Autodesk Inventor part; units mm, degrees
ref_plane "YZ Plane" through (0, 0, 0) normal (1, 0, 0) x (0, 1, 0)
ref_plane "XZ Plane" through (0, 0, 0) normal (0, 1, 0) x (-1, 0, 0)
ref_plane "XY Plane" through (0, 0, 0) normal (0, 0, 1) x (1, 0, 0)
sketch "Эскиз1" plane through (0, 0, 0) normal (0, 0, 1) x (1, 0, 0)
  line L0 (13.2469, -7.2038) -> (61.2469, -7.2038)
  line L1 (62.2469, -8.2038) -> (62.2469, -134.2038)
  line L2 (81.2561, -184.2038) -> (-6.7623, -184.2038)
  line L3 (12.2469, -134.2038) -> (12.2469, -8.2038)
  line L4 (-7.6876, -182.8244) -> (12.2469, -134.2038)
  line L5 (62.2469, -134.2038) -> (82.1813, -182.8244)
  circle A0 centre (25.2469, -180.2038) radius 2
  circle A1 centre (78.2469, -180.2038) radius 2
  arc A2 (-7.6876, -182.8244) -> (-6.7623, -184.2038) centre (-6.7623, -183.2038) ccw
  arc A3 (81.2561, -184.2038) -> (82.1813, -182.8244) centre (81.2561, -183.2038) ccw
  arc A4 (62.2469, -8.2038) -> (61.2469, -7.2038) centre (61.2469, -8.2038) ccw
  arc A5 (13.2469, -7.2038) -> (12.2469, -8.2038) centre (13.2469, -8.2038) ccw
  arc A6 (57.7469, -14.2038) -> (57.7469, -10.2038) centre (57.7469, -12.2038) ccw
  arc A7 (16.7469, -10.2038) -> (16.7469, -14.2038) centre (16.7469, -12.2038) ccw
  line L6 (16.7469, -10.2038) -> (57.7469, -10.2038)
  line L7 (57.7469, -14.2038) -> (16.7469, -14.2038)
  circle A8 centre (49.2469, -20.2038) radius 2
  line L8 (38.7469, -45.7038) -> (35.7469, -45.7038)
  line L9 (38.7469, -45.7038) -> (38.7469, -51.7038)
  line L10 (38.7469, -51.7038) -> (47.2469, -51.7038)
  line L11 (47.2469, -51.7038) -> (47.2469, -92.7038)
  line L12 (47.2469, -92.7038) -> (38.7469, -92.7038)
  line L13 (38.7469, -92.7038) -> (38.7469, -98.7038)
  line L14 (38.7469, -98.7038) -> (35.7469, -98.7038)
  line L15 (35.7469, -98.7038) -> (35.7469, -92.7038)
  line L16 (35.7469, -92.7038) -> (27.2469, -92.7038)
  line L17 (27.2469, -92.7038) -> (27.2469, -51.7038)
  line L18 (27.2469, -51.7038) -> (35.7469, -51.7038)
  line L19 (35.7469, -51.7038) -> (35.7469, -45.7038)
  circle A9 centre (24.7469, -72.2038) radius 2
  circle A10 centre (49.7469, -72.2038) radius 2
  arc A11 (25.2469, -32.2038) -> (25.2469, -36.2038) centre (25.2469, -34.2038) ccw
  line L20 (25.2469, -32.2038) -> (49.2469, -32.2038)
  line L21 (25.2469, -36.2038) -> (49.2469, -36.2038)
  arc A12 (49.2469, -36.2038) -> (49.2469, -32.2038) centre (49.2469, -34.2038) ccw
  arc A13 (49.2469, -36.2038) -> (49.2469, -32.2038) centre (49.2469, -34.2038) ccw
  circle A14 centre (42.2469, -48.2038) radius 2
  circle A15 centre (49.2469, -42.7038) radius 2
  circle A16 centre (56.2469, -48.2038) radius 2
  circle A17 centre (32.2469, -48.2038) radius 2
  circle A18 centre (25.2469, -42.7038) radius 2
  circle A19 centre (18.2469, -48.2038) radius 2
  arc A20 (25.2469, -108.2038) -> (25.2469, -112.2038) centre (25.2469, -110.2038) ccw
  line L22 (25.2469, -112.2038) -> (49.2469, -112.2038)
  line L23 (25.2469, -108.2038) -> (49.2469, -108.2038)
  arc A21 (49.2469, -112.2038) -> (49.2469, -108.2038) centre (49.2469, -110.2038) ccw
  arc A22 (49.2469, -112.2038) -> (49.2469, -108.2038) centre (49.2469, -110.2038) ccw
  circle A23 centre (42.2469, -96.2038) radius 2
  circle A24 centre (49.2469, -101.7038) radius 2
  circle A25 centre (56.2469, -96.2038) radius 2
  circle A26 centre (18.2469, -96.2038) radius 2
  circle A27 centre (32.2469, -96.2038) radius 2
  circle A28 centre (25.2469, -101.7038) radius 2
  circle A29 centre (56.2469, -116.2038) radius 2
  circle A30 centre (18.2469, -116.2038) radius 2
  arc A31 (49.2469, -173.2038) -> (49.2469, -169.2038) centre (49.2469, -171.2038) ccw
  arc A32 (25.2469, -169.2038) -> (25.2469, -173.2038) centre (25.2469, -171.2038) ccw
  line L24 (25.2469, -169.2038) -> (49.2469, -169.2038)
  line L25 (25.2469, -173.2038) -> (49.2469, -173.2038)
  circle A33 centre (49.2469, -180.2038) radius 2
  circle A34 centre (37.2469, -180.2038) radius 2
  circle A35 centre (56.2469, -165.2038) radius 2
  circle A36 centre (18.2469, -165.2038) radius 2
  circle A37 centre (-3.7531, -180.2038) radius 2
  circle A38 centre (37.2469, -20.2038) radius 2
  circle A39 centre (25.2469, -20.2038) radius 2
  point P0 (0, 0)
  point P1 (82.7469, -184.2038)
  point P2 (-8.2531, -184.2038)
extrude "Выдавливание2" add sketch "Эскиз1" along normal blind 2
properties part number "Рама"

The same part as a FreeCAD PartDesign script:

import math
import FreeCAD as App
import Part
import Sketcher
Q = App.Units.Quantity


def add_polygon(sketch, points):
    """Adds a closed chain of lines whose ends are joined by coincident constraints."""
    first, n = sketch.GeometryCount, len(points)
    for a, b in zip(points, points[1:] + points[:1]):
        sketch.addGeometry(Part.LineSegment(App.Vector(*a, 0), App.Vector(*b, 0)), False)
    for i in range(n):
        sketch.addConstraint(Sketcher.Constraint("Coincident", first + i, 2, first + (i + 1) % n, 1))

doc = App.newDocument("Part")
body = doc.addObject("PartDesign::Body", "Body")

# Sketch on XY plane
sketch1 = body.newObject("Sketcher::SketchObject", "Sketch")
sketch1.AttachmentSupport = (doc.getObject("XY_Plane"), [""])
sketch1.MapMode = "FlatFace"
sketch1.addGeometry(Part.LineSegment(App.Vector(61.2469, -7.2038, 0), App.Vector(13.2469, -7.2038, 0)), False)  # 0
sketch1.addGeometry(Part.ArcOfCircle(Part.Circle(App.Vector(13.2469, -8.2038, 0), App.Vector(0, 0, 1), 1), math.radians(90), math.radians(180)), False)  # 1
sketch1.addGeometry(Part.LineSegment(App.Vector(12.2469, -8.2038, 0), App.Vector(12.2469, -134.2038, 0)), False)  # 2
sketch1.addGeometry(Part.LineSegment(App.Vector(12.2469, -134.2038, 0), App.Vector(-7.6876, -182.8244, 0)), False)  # 3
sketch1.addGeometry(Part.ArcOfCircle(Part.Circle(App.Vector(-6.7623, -183.2038, 0), App.Vector(0, 0, 1), 1.000062), math.radians(157.70494), math.radians(270)), False)  # 4
sketch1.addGeometry(Part.LineSegment(App.Vector(-6.7623, -184.2038, 0), App.Vector(81.2561, -184.2038, 0)), False)  # 5
sketch1.addGeometry(Part.ArcOfCircle(Part.Circle(App.Vector(81.2561, -183.2038, 0), App.Vector(0, 0, 1), 1), math.radians(-90), math.radians(22.297234)), False)  # 6
sketch1.addGeometry(Part.LineSegment(App.Vector(82.1813, -182.8244, 0), App.Vector(62.2469, -134.2038, 0)), False)  # 7
sketch1.addGeometry(Part.LineSegment(App.Vector(62.2469, -134.2038, 0), App.Vector(62.2469, -8.2038, 0)), False)  # 8
sketch1.addGeometry(Part.ArcOfCircle(Part.Circle(App.Vector(61.2469, -8.2038, 0), App.Vector(0, 0, 1), 1), math.radians(0), math.radians(90)), False)  # 9
sketch1.addGeometry(Part.Circle(App.Vector(-3.7531, -180.2038, 0), App.Vector(0, 0, 1), 2), False)  # 10
sketch1.addGeometry(Part.Circle(App.Vector(25.2469, -180.2038, 0), App.Vector(0, 0, 1), 2), False)  # 11
sketch1.addGeometry(Part.Circle(App.Vector(18.2469, -165.2038, 0), App.Vector(0, 0, 1), 2), False)  # 12
sketch1.addGeometry(Part.Circle(App.Vector(18.2469, -116.2038, 0), App.Vector(0, 0, 1), 2), False)  # 13
sketch1.addGeometry(Part.Circle(App.Vector(18.2469, -96.2038, 0), App.Vector(0, 0, 1), 2), False)  # 14
sketch1.addGeometry(Part.Circle(App.Vector(25.2469, -101.7038, 0), App.Vector(0, 0, 1), 2), False)  # 15
sketch1.addGeometry(Part.Circle(App.Vector(32.2469, -96.2038, 0), App.Vector(0, 0, 1), 2), False)  # 16
sketch1.addGeometry(Part.Circle(App.Vector(37.2469, -180.2038, 0), App.Vector(0, 0, 1), 2), False)  # 17
sketch1.addGeometry(Part.ArcOfCircle(Part.Circle(App.Vector(49.2469, -171.2038, 0), App.Vector(0, 0, 1), 2), math.radians(-90), math.radians(90)), False)  # 18
sketch1.addGeometry(Part.LineSegment(App.Vector(49.2469, -173.2038, 0), App.Vector(25.2469, -173.2038, 0)), False)  # 19
sketch1.addGeometry(Part.ArcOfCircle(Part.Circle(App.Vector(25.2469, -171.2038, 0), App.Vector(0, 0, 1), 2), math.radians(90), math.radians(270)), False)  # 20
sketch1.addGeometry(Part.LineSegment(App.Vector(25.2469, -169.2038, 0), App.Vector(49.2469, -169.2038, 0)), False)  # 21
sketch1.addGeometry(Part.Circle(App.Vector(49.2469, -180.2038, 0), App.Vector(0, 0, 1), 2), False)  # 22
sketch1.addGeometry(Part.Circle(App.Vector(56.2469, -165.2038, 0), App.Vector(0, 0, 1), 2), False)  # 23
sketch1.addGeometry(Part.Circle(App.Vector(78.2469, -180.2038, 0), App.Vector(0, 0, 1), 2), False)  # 24
sketch1.addGeometry(Part.ArcOfCircle(Part.Circle(App.Vector(25.2469, -110.2038, 0), App.Vector(0, 0, 1), 2), math.radians(90), math.radians(270)), False)  # 25
sketch1.addGeometry(Part.LineSegment(App.Vector(25.2469, -108.2038, 0), App.Vector(49.2469, -108.2038, 0)), False)  # 26
sketch1.addGeometry(Part.ArcOfCircle(Part.Circle(App.Vector(49.2469, -110.2038, 0), App.Vector(0, 0, 1), 2), math.radians(-90), math.radians(90)), False)  # 27
sketch1.addGeometry(Part.LineSegment(App.Vector(49.2469, -112.2038, 0), App.Vector(25.2469, -112.2038, 0)), False)  # 28
sketch1.addGeometry(Part.Circle(App.Vector(42.2469, -96.2038, 0), App.Vector(0, 0, 1), 2), False)  # 29
sketch1.addGeometry(Part.Circle(App.Vector(56.2469, -116.2038, 0), App.Vector(0, 0, 1), 2), False)  # 30
sketch1.addGeometry(Part.Circle(App.Vector(49.2469, -101.7038, 0), App.Vector(0, 0, 1), 2), False)  # 31
sketch1.addGeometry(Part.Circle(App.Vector(56.2469, -96.2038, 0), App.Vector(0, 0, 1), 2), False)  # 32
sketch1.addGeometry(Part.Circle(App.Vector(24.7469, -72.2038, 0), App.Vector(0, 0, 1), 2), False)  # 33
sketch1.addGeometry(Part.Circle(App.Vector(18.2469, -48.2038, 0), App.Vector(0, 0, 1), 2), False)  # 34
sketch1.addGeometry(Part.Circle(App.Vector(25.2469, -42.7038, 0), App.Vector(0, 0, 1), 2), False)  # 35
sketch1.addGeometry(Part.Circle(App.Vector(32.2469, -48.2038, 0), App.Vector(0, 0, 1), 2), False)  # 36
sketch1.addGeometry(Part.Circle(App.Vector(25.2469, -20.2038, 0), App.Vector(0, 0, 1), 2), False)  # 37
add_polygon(sketch1, [(35.7469, -45.7038), (38.7469, -45.7038), (38.7469, -51.7038), (47.2469, -51.7038), (47.2469, -92.7038), (38.7469, -92.7038), (38.7469, -98.7038), (35.7469, -98.7038), (35.7469, -92.7038), (27.2469, -92.7038), (27.2469, -51.7038), (35.7469, -51.7038)])  # lines 38-49
sketch1.addGeometry(Part.Circle(App.Vector(49.7469, -72.2038, 0), App.Vector(0, 0, 1), 2), False)  # 50
sketch1.addGeometry(Part.Circle(App.Vector(42.2469, -48.2038, 0), App.Vector(0, 0, 1), 2), False)  # 51
sketch1.addGeometry(Part.ArcOfCircle(Part.Circle(App.Vector(25.2469, -34.2038, 0), App.Vector(0, 0, 1), 2), math.radians(90), math.radians(270)), False)  # 52
sketch1.addGeometry(Part.LineSegment(App.Vector(25.2469, -32.2038, 0), App.Vector(49.2469, -32.2038, 0)), False)  # 53
sketch1.addGeometry(Part.ArcOfCircle(Part.Circle(App.Vector(49.2469, -34.2038, 0), App.Vector(0, 0, 1), 2), math.radians(-90), math.radians(90)), False)  # 54
sketch1.addGeometry(Part.LineSegment(App.Vector(49.2469, -36.2038, 0), App.Vector(25.2469, -36.2038, 0)), False)  # 55
sketch1.addGeometry(Part.Circle(App.Vector(49.2469, -42.7038, 0), App.Vector(0, 0, 1), 2), False)  # 56
sketch1.addGeometry(Part.Circle(App.Vector(56.2469, -48.2038, 0), App.Vector(0, 0, 1), 2), False)  # 57
sketch1.addGeometry(Part.Circle(App.Vector(37.2469, -20.2038, 0), App.Vector(0, 0, 1), 2), False)  # 58
sketch1.addGeometry(Part.ArcOfCircle(Part.Circle(App.Vector(57.7469, -12.2038, 0), App.Vector(0, 0, 1), 2), math.radians(-90), math.radians(90)), False)  # 59
sketch1.addGeometry(Part.LineSegment(App.Vector(57.7469, -14.2038, 0), App.Vector(16.7469, -14.2038, 0)), False)  # 60
sketch1.addGeometry(Part.ArcOfCircle(Part.Circle(App.Vector(16.7469, -12.2038, 0), App.Vector(0, 0, 1), 2), math.radians(90), math.radians(270)), False)  # 61
sketch1.addGeometry(Part.LineSegment(App.Vector(16.7469, -10.2038, 0), App.Vector(57.7469, -10.2038, 0)), False)  # 62
sketch1.addGeometry(Part.Circle(App.Vector(49.2469, -20.2038, 0), App.Vector(0, 0, 1), 2), False)  # 63
sketch1.addConstraint([
    Sketcher.Constraint("Tangent", 0, 2, 1, 1),
    Sketcher.Constraint("Tangent", 1, 2, 2, 1),
    Sketcher.Constraint("Coincident", 2, 2, 3, 1),
    Sketcher.Constraint("Tangent", 3, 2, 4, 1),
    Sketcher.Constraint("Tangent", 4, 2, 5, 1),
    Sketcher.Constraint("Tangent", 5, 2, 6, 1),
    Sketcher.Constraint("Tangent", 6, 2, 7, 1),
    Sketcher.Constraint("Coincident", 7, 2, 8, 1),
    Sketcher.Constraint("Tangent", 8, 2, 9, 1),
    Sketcher.Constraint("Tangent", 9, 2, 0, 1),
    Sketcher.Constraint("Tangent", 18, 1, 19, 1),
    Sketcher.Constraint("Tangent", 19, 2, 20, 2),
    Sketcher.Constraint("Tangent", 20, 1, 21, 1),
    Sketcher.Constraint("Tangent", 21, 2, 18, 2),
    Sketcher.Constraint("Tangent", 25, 1, 26, 1),
    Sketcher.Constraint("Tangent", 26, 2, 27, 2),
    Sketcher.Constraint("Tangent", 27, 1, 28, 1),
    Sketcher.Constraint("Tangent", 28, 2, 25, 2),
    Sketcher.Constraint("Tangent", 52, 1, 53, 1),
    Sketcher.Constraint("Tangent", 53, 2, 54, 2),
    Sketcher.Constraint("Tangent", 54, 1, 55, 1),
    Sketcher.Constraint("Tangent", 55, 2, 52, 2),
    Sketcher.Constraint("Tangent", 59, 1, 60, 1),
    Sketcher.Constraint("Tangent", 60, 2, 61, 2),
    Sketcher.Constraint("Tangent", 61, 1, 62, 1),
    Sketcher.Constraint("Tangent", 62, 2, 59, 2),
    Sketcher.Constraint("Horizontal", 0),
    Sketcher.Constraint("Vertical", 2),
    Sketcher.Constraint("Horizontal", 5),
    Sketcher.Constraint("Vertical", 8),
    Sketcher.Constraint("Horizontal", 19),
    Sketcher.Constraint("Horizontal", 21),
    Sketcher.Constraint("Horizontal", 26),
    Sketcher.Constraint("Horizontal", 28),
    Sketcher.Constraint("Horizontal", 38),
    Sketcher.Constraint("Vertical", 39),
    Sketcher.Constraint("Horizontal", 40),
    Sketcher.Constraint("Vertical", 41),
    Sketcher.Constraint("Horizontal", 42),
    Sketcher.Constraint("Vertical", 43),
    Sketcher.Constraint("Horizontal", 44),
    Sketcher.Constraint("Vertical", 45),
    Sketcher.Constraint("Horizontal", 46),
    Sketcher.Constraint("Vertical", 47),
    Sketcher.Constraint("Horizontal", 48),
    Sketcher.Constraint("Vertical", 49),
    Sketcher.Constraint("Horizontal", 53),
    Sketcher.Constraint("Horizontal", 55),
    Sketcher.Constraint("Horizontal", 60),
    Sketcher.Constraint("Horizontal", 62),
    Sketcher.Constraint("Equal", 1, 4),
    Sketcher.Constraint("Equal", 4, 6),
    Sketcher.Constraint("Equal", 6, 9),
    Sketcher.Constraint("Equal", 10, 11),
    Sketcher.Constraint("Equal", 11, 12),
    Sketcher.Constraint("Equal", 12, 13),
    Sketcher.Constraint("Equal", 13, 14),
    Sketcher.Constraint("Equal", 14, 15),
    Sketcher.Constraint("Equal", 15, 16),
    Sketcher.Constraint("Equal", 16, 17),
    Sketcher.Constraint("Equal", 17, 18),
    Sketcher.Constraint("Equal", 20, 22),
    Sketcher.Constraint("Equal", 22, 23),
    Sketcher.Constraint("Equal", 23, 24),
    Sketcher.Constraint("Equal", 24, 25),
    Sketcher.Constraint("Equal", 27, 29),
    Sketcher.Constraint("Equal", 29, 30),
    Sketcher.Constraint("Equal", 30, 31),
    Sketcher.Constraint("Equal", 31, 32),
    Sketcher.Constraint("Equal", 32, 33),
    Sketcher.Constraint("Equal", 33, 34),
    Sketcher.Constraint("Equal", 34, 35),
    Sketcher.Constraint("Equal", 35, 36),
    Sketcher.Constraint("Equal", 36, 37),
    Sketcher.Constraint("Equal", 37, 50),
    Sketcher.Constraint("Equal", 50, 51),
    Sketcher.Constraint("Equal", 51, 52),
    Sketcher.Constraint("Equal", 54, 56),
    Sketcher.Constraint("Equal", 56, 57),
    Sketcher.Constraint("Equal", 57, 58),
    Sketcher.Constraint("Equal", 58, 59),
    Sketcher.Constraint("Equal", 61, 63),
    Sketcher.Constraint("Horizontal", 10, 3, 11, 3),
    Sketcher.Constraint("Horizontal", 14, 3, 16, 3),
    Sketcher.Constraint("Horizontal", 11, 3, 17, 3),
    Sketcher.Constraint("Horizontal", 17, 3, 22, 3),
    Sketcher.Constraint("Horizontal", 12, 3, 23, 3),
    Sketcher.Constraint("Horizontal", 22, 3, 24, 3),
    Sketcher.Constraint("Horizontal", 16, 3, 29, 3),
    Sketcher.Constraint("Horizontal", 13, 3, 30, 3),
    Sketcher.Constraint("Horizontal", 15, 3, 31, 3),
    Sketcher.Constraint("Horizontal", 29, 3, 32, 3),
    Sketcher.Constraint("Horizontal", 34, 3, 36, 3),
    Sketcher.Constraint("Horizontal", 33, 3, 50, 3),
    Sketcher.Constraint("Horizontal", 36, 3, 51, 3),
    Sketcher.Constraint("Horizontal", 35, 3, 56, 3),
    Sketcher.Constraint("Horizontal", 51, 3, 57, 3),
    Sketcher.Constraint("Horizontal", 37, 3, 58, 3),
    Sketcher.Constraint("Horizontal", 58, 3, 63, 3),
    Sketcher.Constraint("Horizontal", 3, 2, 6, 2),
    Sketcher.Constraint("Horizontal", 2, 2, 7, 2),
    Sketcher.Constraint("Horizontal", 42, 2, 45, 2),
    Sketcher.Constraint("Horizontal", 40, 2, 47, 2),
    Sketcher.Constraint("Vertical", 12, 3, 13, 3),
    Sketcher.Constraint("Vertical", 13, 3, 14, 3),
    Sketcher.Constraint("Vertical", 11, 3, 15, 3),
    Sketcher.Constraint("Vertical", 15, 3, 20, 3),
    Sketcher.Constraint("Vertical", 18, 3, 22, 3),
    Sketcher.Constraint("Vertical", 20, 3, 25, 3),
    Sketcher.Constraint("Vertical", 22, 3, 27, 3),
    Sketcher.Constraint("Vertical", 23, 3, 30, 3),
    Sketcher.Constraint("Vertical", 27, 3, 31, 3),
    Sketcher.Constraint("Vertical", 30, 3, 32, 3),
    Sketcher.Constraint("Vertical", 14, 3, 34, 3),
    Sketcher.Constraint("Vertical", 25, 3, 35, 3),
    Sketcher.Constraint("Vertical", 16, 3, 36, 3),
    Sketcher.Constraint("Vertical", 35, 3, 37, 3),
    Sketcher.Constraint("Vertical", 29, 3, 51, 3),
    Sketcher.Constraint("Vertical", 37, 3, 52, 3),
    Sketcher.Constraint("Vertical", 31, 3, 54, 3),
    Sketcher.Constraint("Vertical", 54, 3, 56, 3),
    Sketcher.Constraint("Vertical", 32, 3, 57, 3),
    Sketcher.Constraint("Vertical", 17, 3, 58, 3),
    Sketcher.Constraint("Vertical", 56, 3, 63, 3),
    Sketcher.Constraint("Vertical", 39, 2, 42, 2),
    Sketcher.Constraint("Vertical", 45, 2, 48, 2),
    Sketcher.Constraint("Equal", 42, 46),
    Sketcher.Constraint("Equal", 62, 41),
    Sketcher.Constraint("Equal", 39, 43),
    Sketcher.Constraint("Diameter", 10, Q("4 mm")),
    Sketcher.Constraint("Radius", 1, Q("1 mm")),
    Sketcher.Constraint("DistanceX", 0, 2, 0, 1, Q("48 mm")),
    Sketcher.Constraint("DistanceX", 19, 2, 19, 1, Q("24 mm")),
    Sketcher.Constraint("DistanceX", 38, 1, 38, 2, Q("3 mm")),
    Sketcher.Constraint("DistanceX", 60, 2, 60, 1, Q("41 mm")),
    Sketcher.Constraint("DistanceY", 2, 2, 2, 1, Q("126 mm")),
    Sketcher.Constraint("DistanceY", 39, 2, 39, 1, Q("6 mm")),
    Sketcher.Constraint("DistanceX", 40, 1, 40, 2, Q("8.5 mm")),
    Sketcher.Constraint("DistanceX", 5, 1, 5, 2, Q("88.0184 mm")),
    Sketcher.Constraint("DistanceX", -1, 1, 1, 3, Q("13.247 mm")),
    Sketcher.Constraint("DistanceX", 10, 3, -1, 1, Q("3.753 mm")),
    Sketcher.Constraint("DistanceX", -1, 1, 11, 3, Q("25.247 mm")),
    Sketcher.Constraint("DistanceX", -1, 1, 12, 3, Q("18.247 mm")),
    Sketcher.Constraint("DistanceX", -1, 1, 16, 3, Q("32.247 mm")),
    Sketcher.Constraint("DistanceX", -1, 1, 17, 3, Q("37.247 mm")),
    Sketcher.Constraint("DistanceX", -1, 1, 23, 3, Q("56.247 mm")),
    Sketcher.Constraint("DistanceX", -1, 1, 24, 3, Q("78.247 mm")),
    Sketcher.Constraint("DistanceX", -1, 1, 29, 3, Q("42.247 mm")),
    Sketcher.Constraint("DistanceX", -1, 1, 33, 3, Q("24.747 mm")),
    Sketcher.Constraint("DistanceX", -1, 1, 50, 3, Q("49.747 mm")),
    Sketcher.Constraint("DistanceX", -1, 1, 59, 3, Q("57.747 mm")),
    Sketcher.Constraint("DistanceX", -1, 1, 38, 2, Q("38.747 mm")),
    Sketcher.Constraint("Distance", 3, Q("52.5485 mm")),
    Sketcher.Constraint("DistanceY", 1, 3, -1, 1, Q("8.2038 mm")),
    Sketcher.Constraint("DistanceY", 10, 3, -1, 1, Q("180.2038 mm")),
    Sketcher.Constraint("DistanceY", 12, 3, -1, 1, Q("165.2038 mm")),
    Sketcher.Constraint("DistanceY", 13, 3, -1, 1, Q("116.2038 mm")),
    Sketcher.Constraint("DistanceY", 14, 3, -1, 1, Q("96.2038 mm")),
    Sketcher.Constraint("DistanceY", 15, 3, -1, 1, Q("101.7038 mm")),
    Sketcher.Constraint("DistanceY", 18, 3, -1, 1, Q("171.2038 mm")),
    Sketcher.Constraint("DistanceY", 25, 3, -1, 1, Q("110.2038 mm")),
    Sketcher.Constraint("DistanceY", 33, 3, -1, 1, Q("72.2038 mm")),
    Sketcher.Constraint("DistanceY", 34, 3, -1, 1, Q("48.2038 mm")),
    Sketcher.Constraint("DistanceY", 35, 3, -1, 1, Q("42.7038 mm")),
    Sketcher.Constraint("DistanceY", 37, 3, -1, 1, Q("20.2038 mm")),
    Sketcher.Constraint("DistanceY", 52, 3, -1, 1, Q("34.2038 mm")),
    Sketcher.Constraint("DistanceY", 59, 3, -1, 1, Q("12.2038 mm")),
    Sketcher.Constraint("DistanceY", 38, 2, -1, 1, Q("45.7038 mm")),
])
pad1 = body.newObject("PartDesign::Pad", "Pad")
pad1.Profile = sketch1
pad1.Length = 2

doc.recompute()
